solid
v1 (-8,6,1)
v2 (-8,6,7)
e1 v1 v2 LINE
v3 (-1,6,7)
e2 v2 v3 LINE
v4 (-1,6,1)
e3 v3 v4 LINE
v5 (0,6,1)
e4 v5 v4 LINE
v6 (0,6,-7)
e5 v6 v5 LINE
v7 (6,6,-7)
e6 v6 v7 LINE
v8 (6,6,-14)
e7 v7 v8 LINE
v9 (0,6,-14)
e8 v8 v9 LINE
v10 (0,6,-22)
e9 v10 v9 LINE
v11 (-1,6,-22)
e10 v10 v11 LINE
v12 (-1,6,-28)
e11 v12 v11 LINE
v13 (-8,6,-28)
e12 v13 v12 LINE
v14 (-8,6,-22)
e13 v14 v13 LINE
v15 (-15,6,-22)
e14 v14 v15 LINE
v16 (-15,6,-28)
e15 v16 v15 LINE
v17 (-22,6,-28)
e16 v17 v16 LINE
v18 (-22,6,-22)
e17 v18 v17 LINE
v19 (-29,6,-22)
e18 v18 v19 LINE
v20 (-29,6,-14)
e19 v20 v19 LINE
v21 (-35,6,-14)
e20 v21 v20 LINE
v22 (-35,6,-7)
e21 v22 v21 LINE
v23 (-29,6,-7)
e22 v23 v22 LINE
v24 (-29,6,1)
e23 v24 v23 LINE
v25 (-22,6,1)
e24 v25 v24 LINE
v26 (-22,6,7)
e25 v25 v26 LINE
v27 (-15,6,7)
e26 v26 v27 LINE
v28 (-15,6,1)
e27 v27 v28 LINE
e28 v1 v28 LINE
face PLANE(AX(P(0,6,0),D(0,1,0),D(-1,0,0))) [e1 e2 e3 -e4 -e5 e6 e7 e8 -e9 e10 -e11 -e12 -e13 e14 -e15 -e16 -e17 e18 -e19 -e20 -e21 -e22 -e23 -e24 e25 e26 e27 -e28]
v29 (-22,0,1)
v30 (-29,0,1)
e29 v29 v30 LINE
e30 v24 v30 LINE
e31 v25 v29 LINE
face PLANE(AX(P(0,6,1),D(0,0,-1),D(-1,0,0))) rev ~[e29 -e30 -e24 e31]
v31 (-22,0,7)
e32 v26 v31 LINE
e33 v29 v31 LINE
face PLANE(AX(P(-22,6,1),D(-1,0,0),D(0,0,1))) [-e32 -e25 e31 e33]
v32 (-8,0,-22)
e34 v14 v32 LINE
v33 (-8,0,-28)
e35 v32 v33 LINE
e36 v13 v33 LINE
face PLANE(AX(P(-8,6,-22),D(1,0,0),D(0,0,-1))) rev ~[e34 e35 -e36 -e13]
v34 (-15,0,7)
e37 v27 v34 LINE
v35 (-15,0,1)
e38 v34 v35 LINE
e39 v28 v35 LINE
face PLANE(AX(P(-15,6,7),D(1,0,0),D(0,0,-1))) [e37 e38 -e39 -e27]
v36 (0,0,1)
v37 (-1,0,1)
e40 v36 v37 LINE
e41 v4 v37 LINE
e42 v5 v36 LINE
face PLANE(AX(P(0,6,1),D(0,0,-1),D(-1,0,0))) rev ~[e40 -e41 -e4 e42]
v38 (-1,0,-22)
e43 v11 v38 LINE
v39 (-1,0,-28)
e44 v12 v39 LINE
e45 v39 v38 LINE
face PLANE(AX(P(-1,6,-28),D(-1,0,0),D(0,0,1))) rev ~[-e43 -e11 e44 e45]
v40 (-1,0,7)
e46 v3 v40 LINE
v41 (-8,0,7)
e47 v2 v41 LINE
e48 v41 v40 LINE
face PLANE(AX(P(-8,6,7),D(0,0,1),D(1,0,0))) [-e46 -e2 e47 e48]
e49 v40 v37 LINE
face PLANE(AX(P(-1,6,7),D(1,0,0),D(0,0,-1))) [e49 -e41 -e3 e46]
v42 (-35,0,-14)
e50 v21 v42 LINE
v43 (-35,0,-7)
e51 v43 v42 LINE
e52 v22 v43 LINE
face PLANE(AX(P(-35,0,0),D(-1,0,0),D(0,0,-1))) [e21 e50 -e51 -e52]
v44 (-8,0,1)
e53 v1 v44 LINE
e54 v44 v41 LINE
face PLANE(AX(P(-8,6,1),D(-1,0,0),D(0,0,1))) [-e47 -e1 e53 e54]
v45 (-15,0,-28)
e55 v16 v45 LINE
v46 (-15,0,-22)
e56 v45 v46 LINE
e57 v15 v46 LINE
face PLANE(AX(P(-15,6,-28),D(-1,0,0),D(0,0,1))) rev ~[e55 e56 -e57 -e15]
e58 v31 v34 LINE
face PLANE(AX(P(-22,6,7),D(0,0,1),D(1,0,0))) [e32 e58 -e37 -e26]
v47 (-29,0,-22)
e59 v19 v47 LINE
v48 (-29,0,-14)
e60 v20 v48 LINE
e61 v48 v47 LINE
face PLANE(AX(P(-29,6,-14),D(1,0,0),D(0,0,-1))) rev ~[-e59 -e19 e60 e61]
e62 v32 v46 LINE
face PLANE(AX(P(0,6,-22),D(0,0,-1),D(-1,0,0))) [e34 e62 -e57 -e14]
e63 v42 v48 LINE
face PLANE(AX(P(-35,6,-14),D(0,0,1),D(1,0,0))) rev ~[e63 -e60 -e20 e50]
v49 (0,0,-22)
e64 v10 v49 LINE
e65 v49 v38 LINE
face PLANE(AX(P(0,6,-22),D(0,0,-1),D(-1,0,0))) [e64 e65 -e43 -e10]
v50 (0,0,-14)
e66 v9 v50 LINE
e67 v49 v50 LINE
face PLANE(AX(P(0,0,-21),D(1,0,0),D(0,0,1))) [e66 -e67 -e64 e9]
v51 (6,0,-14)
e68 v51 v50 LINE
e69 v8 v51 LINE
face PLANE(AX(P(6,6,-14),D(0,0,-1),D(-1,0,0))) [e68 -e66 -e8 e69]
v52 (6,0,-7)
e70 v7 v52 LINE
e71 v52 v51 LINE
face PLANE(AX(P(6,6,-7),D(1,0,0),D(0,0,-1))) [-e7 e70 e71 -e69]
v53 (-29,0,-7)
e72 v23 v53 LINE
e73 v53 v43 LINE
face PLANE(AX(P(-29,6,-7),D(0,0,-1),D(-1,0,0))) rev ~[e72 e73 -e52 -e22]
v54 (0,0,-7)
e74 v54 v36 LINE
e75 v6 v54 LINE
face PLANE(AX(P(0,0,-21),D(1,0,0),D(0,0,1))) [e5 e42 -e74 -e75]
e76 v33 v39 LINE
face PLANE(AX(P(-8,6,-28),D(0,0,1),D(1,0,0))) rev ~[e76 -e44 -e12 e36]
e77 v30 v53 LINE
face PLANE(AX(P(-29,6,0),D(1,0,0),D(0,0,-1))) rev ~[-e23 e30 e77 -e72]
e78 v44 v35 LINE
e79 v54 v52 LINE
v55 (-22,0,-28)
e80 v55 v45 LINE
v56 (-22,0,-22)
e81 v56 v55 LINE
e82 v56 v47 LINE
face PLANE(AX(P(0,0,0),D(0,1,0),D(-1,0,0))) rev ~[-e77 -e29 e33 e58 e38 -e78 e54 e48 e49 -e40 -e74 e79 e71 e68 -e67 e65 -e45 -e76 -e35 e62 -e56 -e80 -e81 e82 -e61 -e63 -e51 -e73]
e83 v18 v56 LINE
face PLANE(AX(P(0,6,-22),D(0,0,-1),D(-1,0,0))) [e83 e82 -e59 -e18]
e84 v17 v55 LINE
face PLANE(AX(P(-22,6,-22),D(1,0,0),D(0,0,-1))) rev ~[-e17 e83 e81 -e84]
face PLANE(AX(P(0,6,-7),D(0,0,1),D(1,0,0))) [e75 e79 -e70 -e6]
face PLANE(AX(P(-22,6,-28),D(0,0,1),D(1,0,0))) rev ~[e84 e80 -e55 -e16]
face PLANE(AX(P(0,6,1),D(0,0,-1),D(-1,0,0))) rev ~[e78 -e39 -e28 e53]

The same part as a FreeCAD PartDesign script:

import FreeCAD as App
import Part
import Sketcher
from FreeCAD import Vector


def add_polygon(sketch, points):
    """Adds a closed chain of lines whose ends are joined by coincident constraints."""
    first, n = sketch.GeometryCount, len(points)
    for a, b in zip(points, points[1:] + points[:1]):
        sketch.addGeometry(Part.LineSegment(App.Vector(*a, 0), App.Vector(*b, 0)), False)
    for i in range(n):
        sketch.addConstraint(Sketcher.Constraint("Coincident", first + i, 2, first + (i + 1) % n, 1))

doc = App.newDocument("Part")
body = doc.addObject("PartDesign::Body", "Body")

# Sketch on XZ plane
sketch1 = doc.addObject("Sketcher::SketchObject", "Sketch")
body.addObject(sketch1)
sketch1.AttachmentSupport = (doc.XZ_Plane, [""])
sketch1.MapMode = "FlatFace"
add_polygon(sketch1, [(-35, 0), (0, 0), (0, -21), (-35, -21)])  # lines 0-3
sketch1.addConstraint([
    Sketcher.Constraint("Horizontal", 0),
    Sketcher.Constraint("Vertical", 1),
    Sketcher.Constraint("Horizontal", 2),
    Sketcher.Constraint("Vertical", 3),
    Sketcher.Constraint("Coincident", 0, 2, -1, 1),
    Sketcher.Constraint("DistanceX", 0, 1, 0, 2, 35.0),
    Sketcher.Constraint("DistanceY", 1, 2, 1, 1, 21.0),
])
pad1 = doc.addObject("PartDesign::Pad", "Pad")
body.addObject(pad1)
pad1.Profile = sketch1
pad1.Length = 6
pad1.Reversed = True

# Sketch on XZ plane
sketch2 = doc.addObject("Sketcher::SketchObject", "Sketch001")
body.addObject(sketch2)
sketch2.AttachmentSupport = (doc.XZ_Plane, [""])
sketch2.MapMode = "FlatFace"
sketch2.AttachmentOffset = App.Placement(Vector(0, 0, -6), App.Rotation())
add_polygon(sketch2, [(-29, -7), (-35, -7), (-35, 0), (-29, 0)])  # lines 0-3
sketch2.addConstraint([
    Sketcher.Constraint("Horizontal", 0),
    Sketcher.Constraint("Vertical", 1),
    Sketcher.Constraint("Horizontal", 2),
    Sketcher.Constraint("Vertical", 3),
    Sketcher.Constraint("PointOnObject", 1, 2, -1),
    Sketcher.Constraint("DistanceX", 0, 2, 0, 1, 6.0),
    Sketcher.Constraint("DistanceY", 1, 1, 1, 2, 7.0),
    Sketcher.Constraint("DistanceX", 0, 2, -1, 1, 35.0),
])
pocket1 = doc.addObject("PartDesign::Pocket", "Pocket")
body.addObject(pocket1)
pocket1.Profile = sketch2
pocket1.Length = 6
pocket1.Reversed = True
doc.recompute()

linearpattern = doc.addObject("PartDesign::LinearPattern", "LinearPattern")
body.addObject(linearpattern)
linearpattern.Originals = [pocket1]
linearpattern.Direction = (doc.Z_Axis, [""])
linearpattern.Mode = "offset"
linearpattern.Offset = 14
linearpattern.Occurrences = 2
linearpattern.Reversed = True
body.Tip = linearpattern

# Sketch on XZ plane
sketch3 = doc.addObject("Sketcher::SketchObject", "Sketch002")
body.addObject(sketch3)
sketch3.AttachmentSupport = (doc.XZ_Plane, [""])
sketch3.MapMode = "FlatFace"
sketch3.AttachmentOffset = App.Placement(Vector(0, 0, -6), App.Rotation())
add_polygon(sketch3, [(0, 0), (-29, 0), (-29, 1), (0, 1)])  # lines 0-3
add_polygon(sketch3, [(-29, -22), (-29, -21), (0, -21), (0, -22)])  # lines 4-7
sketch3.addConstraint([
    Sketcher.Constraint("Horizontal", 0),
    Sketcher.Constraint("Vertical", 1),
    Sketcher.Constraint("Horizontal", 2),
    Sketcher.Constraint("Vertical", 3),
    Sketcher.Constraint("Vertical", 4),
    Sketcher.Constraint("Horizontal", 5),
    Sketcher.Constraint("Vertical", 6),
    Sketcher.Constraint("Horizontal", 7),
    Sketcher.Constraint("Coincident", 3, 2, -1, 1),
    Sketcher.Constraint("PointOnObject", 5, 2, -2),
    Sketcher.Constraint("Vertical", 1, 2, 4, 2),
    Sketcher.Constraint("Equal", 3, 4),
    Sketcher.Constraint("DistanceX", 0, 2, 0, 1, 29.0),
    Sketcher.Constraint("DistanceY", 1, 1, 1, 2, 1.0),
    Sketcher.Constraint("DistanceY", 4, 2, -1, 1, 21.0),
])
pad2 = doc.addObject("PartDesign::Pad", "Pad001")
body.addObject(pad2)
pad2.Profile = sketch3
pad2.Length = 6

# Sketch on XZ plane
sketch4 = doc.addObject("Sketcher::SketchObject", "Sketch003")
body.addObject(sketch4)
sketch4.AttachmentSupport = (doc.XZ_Plane, [""])
sketch4.MapMode = "FlatFace"
sketch4.AttachmentOffset = App.Placement(Vector(0, 0, -6), App.Rotation())
add_polygon(sketch4, [(6, -14), (0, -14), (0, -7), (6, -7)])  # lines 0-3
sketch4.addConstraint([
    Sketcher.Constraint("Horizontal", 0),
    Sketcher.Constraint("Vertical", 1),
    Sketcher.Constraint("Horizontal", 2),
    Sketcher.Constraint("Vertical", 3),
    Sketcher.Constraint("PointOnObject", 0, 2, -2),
    Sketcher.Constraint("DistanceX", 0, 2, 0, 1, 6.0),
    Sketcher.Constraint("DistanceY", 1, 1, 1, 2, 7.0),
    Sketcher.Constraint("DistanceY", 1, 2, -1, 1, 7.0),
])
pad3 = doc.addObject("PartDesign::Pad", "Pad002")
body.addObject(pad3)
pad3.Profile = sketch4
pad3.Length = 6

# Sketch on XZ plane
sketch5 = doc.addObject("Sketcher::SketchObject", "Sketch004")
body.addObject(sketch5)
sketch5.AttachmentSupport = (doc.XZ_Plane, [""])
sketch5.MapMode = "FlatFace"
sketch5.AttachmentOffset = App.Placement(Vector(0, 0, -6), App.Rotation())
add_polygon(sketch5, [(-15, 7), (-15, 1), (-22, 1), (-22, 7)])  # lines 0-3
add_polygon(sketch5, [(-22, -28), (-22, -22), (-15, -22), (-15, -28)])  # lines 4-7
sketch5.addConstraint([
    Sketcher.Constraint("Vertical", 0),
    Sketcher.Constraint("Horizontal", 1),
    Sketcher.Constraint("Vertical", 2),
    Sketcher.Constraint("Horizontal", 3),
    Sketcher.Constraint("Vertical", 4),
    Sketcher.Constraint("Horizontal", 5),
    Sketcher.Constraint("Vertical", 6),
    Sketcher.Constraint("Horizontal", 7),
    Sketcher.Constraint("Vertical", 2, 2, 4, 2),
    Sketcher.Constraint("Vertical", 3, 2, 5, 2),
    Sketcher.Constraint("Equal", 2, 4),
    Sketcher.Constraint("DistanceX", 1, 2, 1, 1, 7.0),
    Sketcher.Constraint("DistanceY", 0, 2, 0, 1, 6.0),
    Sketcher.Constraint("DistanceY", -1, 1, 2, 2, 7.0),
    Sketcher.Constraint("DistanceX", 0, 2, -1, 1, 15.0),
    Sketcher.Constraint("DistanceY", 4, 2, -1, 1, 22.0),
])
pad4 = doc.addObject("PartDesign::Pad", "Pad003")
body.addObject(pad4)
pad4.Profile = sketch5
pad4.Length = 6
doc.recompute()

linearpattern2 = doc.addObject("PartDesign::LinearPattern", "LinearPattern001")
body.addObject(linearpattern2)
linearpattern2.Originals = [pad4]
linearpattern2.Direction = (doc.X_Axis, [""])
linearpattern2.Mode = "offset"
linearpattern2.Offset = 14
linearpattern2.Occurrences = 2
body.Tip = linearpattern2

doc.recompute()
